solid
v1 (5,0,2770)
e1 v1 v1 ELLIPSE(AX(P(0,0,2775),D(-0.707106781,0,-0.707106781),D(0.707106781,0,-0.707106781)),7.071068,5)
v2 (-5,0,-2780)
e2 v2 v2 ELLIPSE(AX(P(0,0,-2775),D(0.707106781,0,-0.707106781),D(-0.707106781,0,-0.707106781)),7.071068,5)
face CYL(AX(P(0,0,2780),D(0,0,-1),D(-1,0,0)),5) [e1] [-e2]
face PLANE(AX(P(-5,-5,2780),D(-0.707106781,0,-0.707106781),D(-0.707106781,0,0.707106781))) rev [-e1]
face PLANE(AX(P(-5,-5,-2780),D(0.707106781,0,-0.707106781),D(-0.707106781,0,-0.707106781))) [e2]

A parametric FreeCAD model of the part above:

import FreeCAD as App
import Part
import Sketcher
Q = App.Units.Quantity

doc = App.newDocument("Part")
body = doc.addObject("PartDesign::Body", "Body")

# Sketch on XY plane
sketch1 = body.newObject("Sketcher::SketchObject", "Sketch")
sketch1.AttachmentSupport = (doc.getObject("XY_Plane"), [""])
sketch1.MapMode = "FlatFace"
sketch1.addGeometry(Part.Circle(App.Vector(0, 0, 0), App.Vector(0, 0, 1), 5), False)
sketch1.addConstraint(Sketcher.Constraint("Coincident", 0, 3, -1, 1))
sketch1.addConstraint(Sketcher.Constraint("Diameter", 0, Q("10 mm")))
pad1 = body.newObject("PartDesign::Pad", "Pad")
pad1.Profile = sketch1
pad1.Length = 5560
pad1.Midplane = True

# Sketch on XZ plane
sketch2 = body.newObject("Sketcher::SketchObject", "Sketch001")
sketch2.AttachmentSupport = (doc.getObject("XZ_Plane"), [""])
sketch2.MapMode = "FlatFace"
sketch2.addGeometry(Part.LineSegment(App.Vector(-5, 2780, 0), App.Vector(5, 2780, 0)), False)
sketch2.addGeometry(Part.LineSegment(App.Vector(5, 2780, 0), App.Vector(5, 2770, 0)), False)
sketch2.addGeometry(Part.LineSegment(App.Vector(5, 2770, 0), App.Vector(-5, 2780, 0)), False)
sketch2.addConstraint(Sketcher.Constraint("Coincident", 0, 2, 1, 1))
sketch2.addConstraint(Sketcher.Constraint("Coincident", 1, 2, 2, 1))
sketch2.addConstraint(Sketcher.Constraint("Coincident", 2, 2, 0, 1))
sketch2.addConstraint(Sketcher.Constraint("Horizontal", 0))
sketch2.addConstraint(Sketcher.Constraint("Vertical", 1))
sketch2.addConstraint(Sketcher.Constraint("Equal", 0, 1))
sketch2.addConstraint(Sketcher.Constraint("DistanceX", 0, 1, 0, 2, Q("10 mm")))
sketch2.addConstraint(Sketcher.Constraint("DistanceX", -1, 1, 0, 2, Q("5 mm")))
sketch2.addConstraint(Sketcher.Constraint("DistanceY", -1, 1, 0, 2, Q("2780 mm")))
pocket1 = body.newObject("PartDesign::Pocket", "Pocket")
pocket1.Profile = sketch2
pocket1.Length = 10
pocket1.Midplane = True
doc.recompute()

mirrored = body.newObject("PartDesign::Mirrored", "Mirrored")
mirrored.Originals = [pocket1]
mirrored.MirrorPlane = (doc.getObject("XY_Plane"), [""])
body.Tip = mirrored

doc.recompute()
